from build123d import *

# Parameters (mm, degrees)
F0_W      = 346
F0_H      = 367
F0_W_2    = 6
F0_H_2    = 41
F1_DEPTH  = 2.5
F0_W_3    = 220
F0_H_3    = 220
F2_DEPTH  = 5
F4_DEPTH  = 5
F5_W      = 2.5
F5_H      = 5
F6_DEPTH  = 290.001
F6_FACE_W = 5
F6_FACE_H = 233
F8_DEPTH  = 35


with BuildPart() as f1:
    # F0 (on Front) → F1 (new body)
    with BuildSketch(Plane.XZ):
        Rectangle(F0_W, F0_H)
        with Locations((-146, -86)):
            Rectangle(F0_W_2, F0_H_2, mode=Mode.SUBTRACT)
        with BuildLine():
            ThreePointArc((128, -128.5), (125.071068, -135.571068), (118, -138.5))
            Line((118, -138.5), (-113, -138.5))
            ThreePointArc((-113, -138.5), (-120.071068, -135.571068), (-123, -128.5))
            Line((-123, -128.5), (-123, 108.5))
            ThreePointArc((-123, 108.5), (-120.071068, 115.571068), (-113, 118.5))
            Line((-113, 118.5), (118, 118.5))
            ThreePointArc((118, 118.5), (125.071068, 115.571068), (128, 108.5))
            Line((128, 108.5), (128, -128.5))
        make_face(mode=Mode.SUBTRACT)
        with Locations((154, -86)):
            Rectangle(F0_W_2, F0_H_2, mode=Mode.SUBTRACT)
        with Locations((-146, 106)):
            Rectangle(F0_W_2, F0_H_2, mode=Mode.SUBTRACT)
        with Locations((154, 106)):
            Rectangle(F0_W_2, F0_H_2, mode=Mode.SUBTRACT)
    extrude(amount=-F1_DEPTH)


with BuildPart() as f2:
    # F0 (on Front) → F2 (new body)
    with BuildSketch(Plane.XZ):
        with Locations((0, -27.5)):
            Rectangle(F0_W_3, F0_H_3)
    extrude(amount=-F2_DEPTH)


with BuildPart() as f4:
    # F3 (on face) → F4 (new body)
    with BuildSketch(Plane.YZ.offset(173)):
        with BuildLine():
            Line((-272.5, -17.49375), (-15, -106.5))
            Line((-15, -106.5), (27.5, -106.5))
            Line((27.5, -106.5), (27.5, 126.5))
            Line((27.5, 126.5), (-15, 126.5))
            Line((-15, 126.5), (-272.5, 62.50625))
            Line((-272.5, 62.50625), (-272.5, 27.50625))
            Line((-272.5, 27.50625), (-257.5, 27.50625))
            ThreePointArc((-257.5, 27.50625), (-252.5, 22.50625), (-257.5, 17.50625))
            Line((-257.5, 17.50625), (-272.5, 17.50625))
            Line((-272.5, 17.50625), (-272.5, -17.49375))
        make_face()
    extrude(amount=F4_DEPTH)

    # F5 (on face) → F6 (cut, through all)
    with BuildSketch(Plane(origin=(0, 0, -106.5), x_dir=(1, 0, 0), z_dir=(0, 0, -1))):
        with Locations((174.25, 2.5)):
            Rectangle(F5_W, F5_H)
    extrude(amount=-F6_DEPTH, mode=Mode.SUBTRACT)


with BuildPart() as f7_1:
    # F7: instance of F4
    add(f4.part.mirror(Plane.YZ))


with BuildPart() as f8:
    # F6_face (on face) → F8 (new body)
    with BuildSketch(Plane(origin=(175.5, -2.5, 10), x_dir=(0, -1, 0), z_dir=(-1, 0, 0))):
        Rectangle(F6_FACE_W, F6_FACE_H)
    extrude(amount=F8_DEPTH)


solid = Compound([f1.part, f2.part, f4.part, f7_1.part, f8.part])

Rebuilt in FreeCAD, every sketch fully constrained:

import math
import FreeCAD as App
import Part
import Sketcher

V = App.Vector
Q = App.Units.Quantity

doc = App.newDocument("Part")
body = doc.addObject("PartDesign::Body", "Body")

# Sketch on XZ plane
sketch1 = body.newObject("Sketcher::SketchObject", "Sketch")
sketch1.AttachmentSupport = (doc.getObject("XZ_Plane"), [""])
sketch1.MapMode = "FlatFace"
sketch1.addGeometry(Part.LineSegment(V(-173, 184, 0), V(-173, -184, 0)), False)
sketch1.addGeometry(Part.LineSegment(V(-173, -184, 0), V(173, -184, 0)), False)
sketch1.addGeometry(Part.LineSegment(V(173, -184, 0), V(173, 184, 0)), False)
sketch1.addGeometry(Part.LineSegment(V(173, 184, 0), V(-173, 184, 0)), False)
sketch1.addGeometry(Part.LineSegment(V(-143, -106, 0), V(-149, -106, 0)), False)
sketch1.addGeometry(Part.LineSegment(V(-149, -106, 0), V(-149, -66, 0)), False)
sketch1.addGeometry(Part.LineSegment(V(-149, -66, 0), V(-143, -66, 0)), False)
sketch1.addGeometry(Part.LineSegment(V(-143, -66, 0), V(-143, -106, 0)), False)
sketch1.addGeometry(Part.LineSegment(V(128, 108, 0), V(128, -128, 0)), False)
sketch1.addGeometry(Part.ArcOfCircle(Part.Circle(V(118, -129, 0), V(0, 0, 1), 10), math.radians(-90), math.radians(0)), False)
sketch1.addGeometry(Part.LineSegment(V(118, -138, 0), V(-113, -138, 0)), False)
sketch1.addGeometry(Part.ArcOfCircle(Part.Circle(V(-113, -129, 0), V(0, 0, 1), 10), math.radians(180), math.radians(270)), False)
sketch1.addGeometry(Part.LineSegment(V(-123, -128, 0), V(-123, 108, 0)), False)
sketch1.addGeometry(Part.ArcOfCircle(Part.Circle(V(-113, 109, 0), V(0, 0, 1), 10), math.radians(90), math.radians(180)), False)
sketch1.addGeometry(Part.LineSegment(V(-113, 118, 0), V(118, 118, 0)), False)
sketch1.addGeometry(Part.ArcOfCircle(Part.Circle(V(118, 109, 0), V(0, 0, 1), 10), math.radians(0), math.radians(90)), False)
sketch1.addGeometry(Part.LineSegment(V(157, -106, 0), V(151, -106, 0)), False)
sketch1.addGeometry(Part.LineSegment(V(151, -106, 0), V(151, -66, 0)), False)
sketch1.addGeometry(Part.LineSegment(V(151, -66, 0), V(157, -66, 0)), False)
sketch1.addGeometry(Part.LineSegment(V(157, -66, 0), V(157, -106, 0)), False)
sketch1.addGeometry(Part.LineSegment(V(-143, 86, 0), V(-149, 86, 0)), False)
sketch1.addGeometry(Part.LineSegment(V(-149, 86, 0), V(-149, 126, 0)), False)
sketch1.addGeometry(Part.LineSegment(V(-149, 126, 0), V(-143, 126, 0)), False)
sketch1.addGeometry(Part.LineSegment(V(-143, 126, 0), V(-143, 86, 0)), False)
sketch1.addGeometry(Part.LineSegment(V(157, 86, 0), V(151, 86, 0)), False)
sketch1.addGeometry(Part.LineSegment(V(151, 86, 0), V(151, 126, 0)), False)
sketch1.addGeometry(Part.LineSegment(V(151, 126, 0), V(157, 126, 0)), False)
sketch1.addGeometry(Part.LineSegment(V(157, 126, 0), V(157, 86, 0)), False)
sketch1.addConstraint(Sketcher.Constraint("Coincident", 0, 2, 1, 1))
sketch1.addConstraint(Sketcher.Constraint("Coincident", 1, 2, 2, 1))
sketch1.addConstraint(Sketcher.Constraint("Coincident", 2, 2, 3, 1))
sketch1.addConstraint(Sketcher.Constraint("Coincident", 3, 2, 0, 1))
sketch1.addConstraint(Sketcher.Constraint("Coincident", 4, 2, 5, 1))
sketch1.addConstraint(Sketcher.Constraint("Coincident", 5, 2, 6, 1))
sketch1.addConstraint(Sketcher.Constraint("Coincident", 6, 2, 7, 1))
sketch1.addConstraint(Sketcher.Constraint("Coincident", 7, 2, 4, 1))
sketch1.addConstraint(Sketcher.Constraint("Tangent", 8, 2, 9, 2))
sketch1.addConstraint(Sketcher.Constraint("Tangent", 9, 1, 10, 1))
sketch1.addConstraint(Sketcher.Constraint("Tangent", 10, 2, 11, 2))
sketch1.addConstraint(Sketcher.Constraint("Tangent", 11, 1, 12, 1))
sketch1.addConstraint(Sketcher.Constraint("Tangent", 12, 2, 13, 2))
sketch1.addConstraint(Sketcher.Constraint("Tangent", 13, 1, 14, 1))
sketch1.addConstraint(Sketcher.Constraint("Tangent", 14, 2, 15, 2))
sketch1.addConstraint(Sketcher.Constraint("Tangent", 15, 1, 8, 1))
sketch1.addConstraint(Sketcher.Constraint("Coincident", 16, 2, 17, 1))
sketch1.addConstraint(Sketcher.Constraint("Coincident", 17, 2, 18, 1))
sketch1.addConstraint(Sketcher.Constraint("Coincident", 18, 2, 19, 1))
sketch1.addConstraint(Sketcher.Constraint("Coincident", 19, 2, 16, 1))
sketch1.addConstraint(Sketcher.Constraint("Coincident", 20, 2, 21, 1))
sketch1.addConstraint(Sketcher.Constraint("Coincident", 21, 2, 22, 1))
sketch1.addConstraint(Sketcher.Constraint("Coincident", 22, 2, 23, 1))
sketch1.addConstraint(Sketcher.Constraint("Coincident", 23, 2, 20, 1))
sketch1.addConstraint(Sketcher.Constraint("Coincident", 24, 2, 25, 1))
sketch1.addConstraint(Sketcher.Constraint("Coincident", 25, 2, 26, 1))
sketch1.addConstraint(Sketcher.Constraint("Coincident", 26, 2, 27, 1))
sketch1.addConstraint(Sketcher.Constraint("Coincident", 27, 2, 24, 1))
sketch1.addConstraint(Sketcher.Constraint("Vertical", 0))
sketch1.addConstraint(Sketcher.Constraint("Horizontal", 1))
sketch1.addConstraint(Sketcher.Constraint("Vertical", 2))
sketch1.addConstraint(Sketcher.Constraint("Horizontal", 3))
sketch1.addConstraint(Sketcher.Constraint("Horizontal", 4))
sketch1.addConstraint(Sketcher.Constraint("Vertical", 5))
sketch1.addConstraint(Sketcher.Constraint("Horizontal", 6))
sketch1.addConstraint(Sketcher.Constraint("Vertical", 7))
sketch1.addConstraint(Sketcher.Constraint("Vertical", 8))
sketch1.addConstraint(Sketcher.Constraint("Horizontal", 10))
sketch1.addConstraint(Sketcher.Constraint("Vertical", 12))
sketch1.addConstraint(Sketcher.Constraint("Horizontal", 14))
sketch1.addConstraint(Sketcher.Constraint("Horizontal", 16))
sketch1.addConstraint(Sketcher.Constraint("Vertical", 17))
sketch1.addConstraint(Sketcher.Constraint("Horizontal", 18))
sketch1.addConstraint(Sketcher.Constraint("Vertical", 19))
sketch1.addConstraint(Sketcher.Constraint("Horizontal", 20))
sketch1.addConstraint(Sketcher.Constraint("Vertical", 21))
sketch1.addConstraint(Sketcher.Constraint("Horizontal", 22))
sketch1.addConstraint(Sketcher.Constraint("Vertical", 23))
sketch1.addConstraint(Sketcher.Constraint("Horizontal", 24))
sketch1.addConstraint(Sketcher.Constraint("Vertical", 25))
sketch1.addConstraint(Sketcher.Constraint("Horizontal", 26))
sketch1.addConstraint(Sketcher.Constraint("Vertical", 27))
sketch1.addConstraint(Sketcher.Constraint("Equal", 9, 11))
sketch1.addConstraint(Sketcher.Constraint("Equal", 11, 13))
sketch1.addConstraint(Sketcher.Constraint("Equal", 13, 15))
sketch1.addConstraint(Sketcher.Constraint("Symmetric", 0, 2, 2, 2, -1, 1))
sketch1.addConstraint(Sketcher.Constraint("Horizontal", 7, 2, 16, 2))
sketch1.addConstraint(Sketcher.Constraint("Horizontal", 6, 2, 17, 2))
sketch1.addConstraint(Sketcher.Constraint("Horizontal", 23, 2, 24, 2))
sketch1.addConstraint(Sketcher.Constraint("Horizontal", 22, 2, 25, 2))
sketch1.addConstraint(Sketcher.Constraint("Vertical", 5, 2, 20, 2))
sketch1.addConstraint(Sketcher.Constraint("Vertical", 7, 2, 22, 2))
sketch1.addConstraint(Sketcher.Constraint("Vertical", 17, 2, 24, 2))
sketch1.addConstraint(Sketcher.Constraint("Vertical", 19, 2, 26, 2))
sketch1.addConstraint(Sketcher.Constraint("Equal", 6, 16))
sketch1.addConstraint(Sketcher.Constraint("Equal", 19, 21))
sketch1.addConstraint(Sketcher.Constraint("Radius", 9, Q("9.999999 mm")))
sketch1.addConstraint(Sketcher.Constraint("DistanceX", 1, 1, 1, 2, Q("346 mm")))
sketch1.addConstraint(Sketcher.Constraint("DistanceX", 4, 2, 4, 1, Q("6 mm")))
sketch1.addConstraint(Sketcher.Constraint("DistanceX", 10, 2, 10, 1, Q("231 mm")))
sketch1.addConstraint(Sketcher.Constraint("DistanceY", 0, 2, 0, 1, Q("367 mm")))
sketch1.addConstraint(Sketcher.Constraint("DistanceY", 5, 1, 5, 2, Q("41 mm")))
sketch1.addConstraint(Sketcher.Constraint("DistanceY", 8, 2, 8, 1, Q("237 mm")))
sketch1.addConstraint(Sketcher.Constraint("DistanceX", -1, 1, 9, 3, Q("118.000001 mm")))
sketch1.addConstraint(Sketcher.Constraint("DistanceX", 4, 2, -1, 1, Q("149 mm")))
sketch1.addConstraint(Sketcher.Constraint("DistanceX", -1, 1, 16, 2, Q("151 mm")))
sketch1.addConstraint(Sketcher.Constraint("DistanceY", 0, 2, 11, 3, Q("54.999999 mm")))
sketch1.addConstraint(Sketcher.Constraint("DistanceY", 11, 3, 4, 2, Q("22.000001 mm")))
sketch1.addConstraint(Sketcher.Constraint("DistanceY", 20, 2, 12, 2, Q("23 mm")))
pad1 = body.newObject("PartDesign::Pad", "Pad")
pad1.Profile = sketch1
pad1.Length = 2.5
pad1.Reversed = True
body2 = doc.addObject("PartDesign::Body", "Body001")

# Sketch on XZ plane
sketch2 = body2.newObject("Sketcher::SketchObject", "Sketch001")
sketch2.AttachmentSupport = (doc.getObject("XZ_Plane001"), [""])
sketch2.MapMode = "FlatFace"
sketch2.addGeometry(Part.LineSegment(V(-110, 82, 0), V(-110, -138, 0)), False)
sketch2.addGeometry(Part.LineSegment(V(-110, -138, 0), V(110, -138, 0)), False)
sketch2.addGeometry(Part.LineSegment(V(110, -138, 0), V(110, 82, 0)), False)
sketch2.addGeometry(Part.LineSegment(V(110, 82, 0), V(-110, 82, 0)), False)
sketch2.addConstraint(Sketcher.Constraint("Coincident", 0, 2, 1, 1))
sketch2.addConstraint(Sketcher.Constraint("Coincident", 1, 2, 2, 1))
sketch2.addConstraint(Sketcher.Constraint("Coincident", 2, 2, 3, 1))
sketch2.addConstraint(Sketcher.Constraint("Coincident", 3, 2, 0, 1))
sketch2.addConstraint(Sketcher.Constraint("Vertical", 0))
sketch2.addConstraint(Sketcher.Constraint("Horizontal", 1))
sketch2.addConstraint(Sketcher.Constraint("Vertical", 2))
sketch2.addConstraint(Sketcher.Constraint("Horizontal", 3))
sketch2.addConstraint(Sketcher.Constraint("Equal", 3, 0))
sketch2.addConstraint(Sketcher.Constraint("DistanceX", 1, 1, 1, 2, Q("220 mm")))
sketch2.addConstraint(Sketcher.Constraint("DistanceX", 0, 2, -1, 1, Q("110 mm")))
sketch2.addConstraint(Sketcher.Constraint("DistanceY", 0, 2, -1, 1, Q("137.5 mm")))
pad2 = body2.newObject("PartDesign::Pad", "Pad001")
pad2.Profile = sketch2
pad2.Length = 5
pad2.Reversed = True
body3 = doc.addObject("PartDesign::Body", "Body002")

# Sketch on YZ plane
sketch3 = body3.newObject("Sketcher::SketchObject", "Sketch002")
sketch3.AttachmentSupport = (doc.getObject("YZ_Plane002"), [""])
sketch3.MapMode = "FlatFace"
sketch3.AttachmentOffset = App.Placement(V(0, 0, 173), App.Rotation())
sketch3.addGeometry(Part.LineSegment(V(-272, -17, 0), V(-15, -106, 0)), False)
sketch3.addGeometry(Part.LineSegment(V(-15, -106, 0), V(28, -106, 0)), False)
sketch3.addGeometry(Part.LineSegment(V(28, -106, 0), V(28, 126, 0)), False)
sketch3.addGeometry(Part.LineSegment(V(28, 126, 0), V(-15, 126, 0)), False)
sketch3.addGeometry(Part.LineSegment(V(-15, 126, 0), V(-272, 63, 0)), False)
sketch3.addGeometry(Part.LineSegment(V(-272, 63, 0), V(-272, 28, 0)), False)
sketch3.addGeometry(Part.LineSegment(V(-272, 28, 0), V(-258, 28, 0)), False)
sketch3.addGeometry(Part.ArcOfCircle(Part.Circle(V(-258, 23, 0), V(0, 0, 1), 5), math.radians(-90), math.radians(90)), False)
sketch3.addGeometry(Part.LineSegment(V(-258, 18, 0), V(-272, 18, 0)), False)
sketch3.addGeometry(Part.LineSegment(V(-272, 18, 0), V(-272, -17, 0)), False)
sketch3.addConstraint(Sketcher.Constraint("Coincident", 0, 2, 1, 1))
sketch3.addConstraint(Sketcher.Constraint("Coincident", 1, 2, 2, 1))
sketch3.addConstraint(Sketcher.Constraint("Coincident", 2, 2, 3, 1))
sketch3.addConstraint(Sketcher.Constraint("Coincident", 3, 2, 4, 1))
sketch3.addConstraint(Sketcher.Constraint("Coincident", 4, 2, 5, 1))
sketch3.addConstraint(Sketcher.Constraint("Coincident", 5, 2, 6, 1))
sketch3.addConstraint(Sketcher.Constraint("Tangent", 6, 2, 7, 2))
sketch3.addConstraint(Sketcher.Constraint("Tangent", 7, 1, 8, 1))
sketch3.addConstraint(Sketcher.Constraint("Coincident", 8, 2, 9, 1))
sketch3.addConstraint(Sketcher.Constraint("Coincident", 9, 2, 0, 1))
sketch3.addConstraint(Sketcher.Constraint("Horizontal", 1))
sketch3.addConstraint(Sketcher.Constraint("Vertical", 2))
sketch3.addConstraint(Sketcher.Constraint("Horizontal", 3))
sketch3.addConstraint(Sketcher.Constraint("Vertical", 5))
sketch3.addConstraint(Sketcher.Constraint("Horizontal", 6))
sketch3.addConstraint(Sketcher.Constraint("Horizontal", 8))
sketch3.addConstraint(Sketcher.Constraint("Vertical", 9))
sketch3.addConstraint(Sketcher.Constraint("Vertical", 0, 2, 3, 2))
sketch3.addConstraint(Sketcher.Constraint("Vertical", 5, 2, 8, 2))
sketch3.addConstraint(Sketcher.Constraint("Equal", 5, 9))
sketch3.addConstraint(Sketcher.Constraint("Radius", 7, Q("5 mm")))
sketch3.addConstraint(Sketcher.Constraint("DistanceX", 6, 1, 6, 2, Q("15 mm")))
sketch3.addConstraint(Sketcher.Constraint("DistanceY", 2, 1, 2, 2, Q("233 mm")))
sketch3.addConstraint(Sketcher.Constraint("DistanceY", 5, 2, 5, 1, Q("35 mm")))
sketch3.addConstraint(Sketcher.Constraint("DistanceX", 1, 1, 1, 2, Q("42.5 mm")))
sketch3.addConstraint(Sketcher.Constraint("DistanceX", 0, 2, -1, 1, Q("15 mm")))
sketch3.addConstraint(Sketcher.Constraint("DistanceX", 7, 3, 1, 2, Q("285 mm")))
sketch3.addConstraint(Sketcher.Constraint("DistanceY", 0, 2, -1, 1, Q("106.5 mm")))
sketch3.addConstraint(Sketcher.Constraint("DistanceY", -1, 1, 7, 3, Q("22.50625 mm")))
pad3 = body3.newObject("PartDesign::Pad", "Pad002")
pad3.Profile = sketch3
pad3.Length = 5

# Sketch on XY plane
sketch4 = body3.newObject("Sketcher::SketchObject", "Sketch003")
sketch4.AttachmentSupport = (doc.getObject("XY_Plane002"), [""])
sketch4.MapMode = "FlatFace"
sketch4.AttachmentOffset = App.Placement(V(0, 0, -106.5), App.Rotation())
sketch4.addGeometry(Part.LineSegment(V(173, -5, 0), V(173, 0, 0)), False)
sketch4.addGeometry(Part.LineSegment(V(173, 0, 0), V(175.5, 0, 0)), False)
sketch4.addGeometry(Part.LineSegment(V(175.5, 0, 0), V(175.5, -5, 0)), False)
sketch4.addGeometry(Part.LineSegment(V(175.5, -5, 0), V(173, -5, 0)), False)
sketch4.addConstraint(Sketcher.Constraint("Coincident", 0, 2, 1, 1))
sketch4.addConstraint(Sketcher.Constraint("Coincident", 1, 2, 2, 1))
sketch4.addConstraint(Sketcher.Constraint("Coincident", 2, 2, 3, 1))
sketch4.addConstraint(Sketcher.Constraint("Coincident", 3, 2, 0, 1))
sketch4.addConstraint(Sketcher.Constraint("Vertical", 0))
sketch4.addConstraint(Sketcher.Constraint("Horizontal", 1))
sketch4.addConstraint(Sketcher.Constraint("Vertical", 2))
sketch4.addConstraint(Sketcher.Constraint("Horizontal", 3))
sketch4.addConstraint(Sketcher.Constraint("PointOnObject", 0, 2, -1))
sketch4.addConstraint(Sketcher.Constraint("DistanceY", 0, 1, 0, 2, Q("5 mm")))
sketch4.addConstraint(Sketcher.Constraint("DistanceX", 1, 1, 1, 2, Q("2.5 mm")))
sketch4.addConstraint(Sketcher.Constraint("DistanceX", -1, 1, 0, 2, Q("173 mm")))
pocket1 = body3.newObject("PartDesign::Pocket", "Pocket")
pocket1.Profile = sketch4
pocket1.Type = "ThroughAll"
pocket1.Reversed = True
body4 = doc.addObject("PartDesign::Body", "Body003")
doc.recompute()

mirroring = doc.addObject("Part::Mirroring", "Mirroring")
mirroring.Source = body3
mirroring.Base = V(0, 0, 0)
mirroring.Normal = V(1, 0, 0)
body4.BaseFeature = mirroring
doc.recompute()
body5 = doc.addObject("PartDesign::Body", "Body004")

# Sketch on YZ plane
sketch5 = body5.newObject("Sketcher::SketchObject", "Sketch004")
sketch5.AttachmentSupport = (doc.getObject("YZ_Plane004"), [""])
sketch5.MapMode = "FlatFace"
sketch5.AttachmentOffset = App.Placement(V(0, 0, 175.5), App.Rotation())
sketch5.addGeometry(Part.LineSegment(V(0, 126, 0), V(0, -106, 0)), False)
sketch5.addGeometry(Part.LineSegment(V(0, -106, 0), V(-5, -106, 0)), False)
sketch5.addGeometry(Part.LineSegment(V(-5, -106, 0), V(-5, 126, 0)), False)
sketch5.addGeometry(Part.LineSegment(V(-5, 126, 0), V(0, 126, 0)), False)
sketch5.addConstraint(Sketcher.Constraint("Coincident", 0, 2, 1, 1))
sketch5.addConstraint(Sketcher.Constraint("Coincident", 1, 2, 2, 1))
sketch5.addConstraint(Sketcher.Constraint("Coincident", 2, 2, 3, 1))
sketch5.addConstraint(Sketcher.Constraint("Coincident", 3, 2, 0, 1))
sketch5.addConstraint(Sketcher.Constraint("Vertical", 0))
sketch5.addConstraint(Sketcher.Constraint("Horizontal", 1))
sketch5.addConstraint(Sketcher.Constraint("Vertical", 2))
sketch5.addConstraint(Sketcher.Constraint("Horizontal", 3))
sketch5.addConstraint(Sketcher.Constraint("PointOnObject", 0, 2, -2))
sketch5.addConstraint(Sketcher.Constraint("DistanceX", 1, 2, 1, 1, Q("5 mm")))
sketch5.addConstraint(Sketcher.Constraint("DistanceY", 0, 2, 0, 1, Q("233 mm")))
sketch5.addConstraint(Sketcher.Constraint("DistanceY", 0, 2, -1, 1, Q("106.5 mm")))
pad4 = body5.newObject("PartDesign::Pad", "Pad003")
pad4.Profile = sketch5
pad4.Length = 35
pad4.Reversed = True
mirroring.Visibility = False

doc.recompute()
